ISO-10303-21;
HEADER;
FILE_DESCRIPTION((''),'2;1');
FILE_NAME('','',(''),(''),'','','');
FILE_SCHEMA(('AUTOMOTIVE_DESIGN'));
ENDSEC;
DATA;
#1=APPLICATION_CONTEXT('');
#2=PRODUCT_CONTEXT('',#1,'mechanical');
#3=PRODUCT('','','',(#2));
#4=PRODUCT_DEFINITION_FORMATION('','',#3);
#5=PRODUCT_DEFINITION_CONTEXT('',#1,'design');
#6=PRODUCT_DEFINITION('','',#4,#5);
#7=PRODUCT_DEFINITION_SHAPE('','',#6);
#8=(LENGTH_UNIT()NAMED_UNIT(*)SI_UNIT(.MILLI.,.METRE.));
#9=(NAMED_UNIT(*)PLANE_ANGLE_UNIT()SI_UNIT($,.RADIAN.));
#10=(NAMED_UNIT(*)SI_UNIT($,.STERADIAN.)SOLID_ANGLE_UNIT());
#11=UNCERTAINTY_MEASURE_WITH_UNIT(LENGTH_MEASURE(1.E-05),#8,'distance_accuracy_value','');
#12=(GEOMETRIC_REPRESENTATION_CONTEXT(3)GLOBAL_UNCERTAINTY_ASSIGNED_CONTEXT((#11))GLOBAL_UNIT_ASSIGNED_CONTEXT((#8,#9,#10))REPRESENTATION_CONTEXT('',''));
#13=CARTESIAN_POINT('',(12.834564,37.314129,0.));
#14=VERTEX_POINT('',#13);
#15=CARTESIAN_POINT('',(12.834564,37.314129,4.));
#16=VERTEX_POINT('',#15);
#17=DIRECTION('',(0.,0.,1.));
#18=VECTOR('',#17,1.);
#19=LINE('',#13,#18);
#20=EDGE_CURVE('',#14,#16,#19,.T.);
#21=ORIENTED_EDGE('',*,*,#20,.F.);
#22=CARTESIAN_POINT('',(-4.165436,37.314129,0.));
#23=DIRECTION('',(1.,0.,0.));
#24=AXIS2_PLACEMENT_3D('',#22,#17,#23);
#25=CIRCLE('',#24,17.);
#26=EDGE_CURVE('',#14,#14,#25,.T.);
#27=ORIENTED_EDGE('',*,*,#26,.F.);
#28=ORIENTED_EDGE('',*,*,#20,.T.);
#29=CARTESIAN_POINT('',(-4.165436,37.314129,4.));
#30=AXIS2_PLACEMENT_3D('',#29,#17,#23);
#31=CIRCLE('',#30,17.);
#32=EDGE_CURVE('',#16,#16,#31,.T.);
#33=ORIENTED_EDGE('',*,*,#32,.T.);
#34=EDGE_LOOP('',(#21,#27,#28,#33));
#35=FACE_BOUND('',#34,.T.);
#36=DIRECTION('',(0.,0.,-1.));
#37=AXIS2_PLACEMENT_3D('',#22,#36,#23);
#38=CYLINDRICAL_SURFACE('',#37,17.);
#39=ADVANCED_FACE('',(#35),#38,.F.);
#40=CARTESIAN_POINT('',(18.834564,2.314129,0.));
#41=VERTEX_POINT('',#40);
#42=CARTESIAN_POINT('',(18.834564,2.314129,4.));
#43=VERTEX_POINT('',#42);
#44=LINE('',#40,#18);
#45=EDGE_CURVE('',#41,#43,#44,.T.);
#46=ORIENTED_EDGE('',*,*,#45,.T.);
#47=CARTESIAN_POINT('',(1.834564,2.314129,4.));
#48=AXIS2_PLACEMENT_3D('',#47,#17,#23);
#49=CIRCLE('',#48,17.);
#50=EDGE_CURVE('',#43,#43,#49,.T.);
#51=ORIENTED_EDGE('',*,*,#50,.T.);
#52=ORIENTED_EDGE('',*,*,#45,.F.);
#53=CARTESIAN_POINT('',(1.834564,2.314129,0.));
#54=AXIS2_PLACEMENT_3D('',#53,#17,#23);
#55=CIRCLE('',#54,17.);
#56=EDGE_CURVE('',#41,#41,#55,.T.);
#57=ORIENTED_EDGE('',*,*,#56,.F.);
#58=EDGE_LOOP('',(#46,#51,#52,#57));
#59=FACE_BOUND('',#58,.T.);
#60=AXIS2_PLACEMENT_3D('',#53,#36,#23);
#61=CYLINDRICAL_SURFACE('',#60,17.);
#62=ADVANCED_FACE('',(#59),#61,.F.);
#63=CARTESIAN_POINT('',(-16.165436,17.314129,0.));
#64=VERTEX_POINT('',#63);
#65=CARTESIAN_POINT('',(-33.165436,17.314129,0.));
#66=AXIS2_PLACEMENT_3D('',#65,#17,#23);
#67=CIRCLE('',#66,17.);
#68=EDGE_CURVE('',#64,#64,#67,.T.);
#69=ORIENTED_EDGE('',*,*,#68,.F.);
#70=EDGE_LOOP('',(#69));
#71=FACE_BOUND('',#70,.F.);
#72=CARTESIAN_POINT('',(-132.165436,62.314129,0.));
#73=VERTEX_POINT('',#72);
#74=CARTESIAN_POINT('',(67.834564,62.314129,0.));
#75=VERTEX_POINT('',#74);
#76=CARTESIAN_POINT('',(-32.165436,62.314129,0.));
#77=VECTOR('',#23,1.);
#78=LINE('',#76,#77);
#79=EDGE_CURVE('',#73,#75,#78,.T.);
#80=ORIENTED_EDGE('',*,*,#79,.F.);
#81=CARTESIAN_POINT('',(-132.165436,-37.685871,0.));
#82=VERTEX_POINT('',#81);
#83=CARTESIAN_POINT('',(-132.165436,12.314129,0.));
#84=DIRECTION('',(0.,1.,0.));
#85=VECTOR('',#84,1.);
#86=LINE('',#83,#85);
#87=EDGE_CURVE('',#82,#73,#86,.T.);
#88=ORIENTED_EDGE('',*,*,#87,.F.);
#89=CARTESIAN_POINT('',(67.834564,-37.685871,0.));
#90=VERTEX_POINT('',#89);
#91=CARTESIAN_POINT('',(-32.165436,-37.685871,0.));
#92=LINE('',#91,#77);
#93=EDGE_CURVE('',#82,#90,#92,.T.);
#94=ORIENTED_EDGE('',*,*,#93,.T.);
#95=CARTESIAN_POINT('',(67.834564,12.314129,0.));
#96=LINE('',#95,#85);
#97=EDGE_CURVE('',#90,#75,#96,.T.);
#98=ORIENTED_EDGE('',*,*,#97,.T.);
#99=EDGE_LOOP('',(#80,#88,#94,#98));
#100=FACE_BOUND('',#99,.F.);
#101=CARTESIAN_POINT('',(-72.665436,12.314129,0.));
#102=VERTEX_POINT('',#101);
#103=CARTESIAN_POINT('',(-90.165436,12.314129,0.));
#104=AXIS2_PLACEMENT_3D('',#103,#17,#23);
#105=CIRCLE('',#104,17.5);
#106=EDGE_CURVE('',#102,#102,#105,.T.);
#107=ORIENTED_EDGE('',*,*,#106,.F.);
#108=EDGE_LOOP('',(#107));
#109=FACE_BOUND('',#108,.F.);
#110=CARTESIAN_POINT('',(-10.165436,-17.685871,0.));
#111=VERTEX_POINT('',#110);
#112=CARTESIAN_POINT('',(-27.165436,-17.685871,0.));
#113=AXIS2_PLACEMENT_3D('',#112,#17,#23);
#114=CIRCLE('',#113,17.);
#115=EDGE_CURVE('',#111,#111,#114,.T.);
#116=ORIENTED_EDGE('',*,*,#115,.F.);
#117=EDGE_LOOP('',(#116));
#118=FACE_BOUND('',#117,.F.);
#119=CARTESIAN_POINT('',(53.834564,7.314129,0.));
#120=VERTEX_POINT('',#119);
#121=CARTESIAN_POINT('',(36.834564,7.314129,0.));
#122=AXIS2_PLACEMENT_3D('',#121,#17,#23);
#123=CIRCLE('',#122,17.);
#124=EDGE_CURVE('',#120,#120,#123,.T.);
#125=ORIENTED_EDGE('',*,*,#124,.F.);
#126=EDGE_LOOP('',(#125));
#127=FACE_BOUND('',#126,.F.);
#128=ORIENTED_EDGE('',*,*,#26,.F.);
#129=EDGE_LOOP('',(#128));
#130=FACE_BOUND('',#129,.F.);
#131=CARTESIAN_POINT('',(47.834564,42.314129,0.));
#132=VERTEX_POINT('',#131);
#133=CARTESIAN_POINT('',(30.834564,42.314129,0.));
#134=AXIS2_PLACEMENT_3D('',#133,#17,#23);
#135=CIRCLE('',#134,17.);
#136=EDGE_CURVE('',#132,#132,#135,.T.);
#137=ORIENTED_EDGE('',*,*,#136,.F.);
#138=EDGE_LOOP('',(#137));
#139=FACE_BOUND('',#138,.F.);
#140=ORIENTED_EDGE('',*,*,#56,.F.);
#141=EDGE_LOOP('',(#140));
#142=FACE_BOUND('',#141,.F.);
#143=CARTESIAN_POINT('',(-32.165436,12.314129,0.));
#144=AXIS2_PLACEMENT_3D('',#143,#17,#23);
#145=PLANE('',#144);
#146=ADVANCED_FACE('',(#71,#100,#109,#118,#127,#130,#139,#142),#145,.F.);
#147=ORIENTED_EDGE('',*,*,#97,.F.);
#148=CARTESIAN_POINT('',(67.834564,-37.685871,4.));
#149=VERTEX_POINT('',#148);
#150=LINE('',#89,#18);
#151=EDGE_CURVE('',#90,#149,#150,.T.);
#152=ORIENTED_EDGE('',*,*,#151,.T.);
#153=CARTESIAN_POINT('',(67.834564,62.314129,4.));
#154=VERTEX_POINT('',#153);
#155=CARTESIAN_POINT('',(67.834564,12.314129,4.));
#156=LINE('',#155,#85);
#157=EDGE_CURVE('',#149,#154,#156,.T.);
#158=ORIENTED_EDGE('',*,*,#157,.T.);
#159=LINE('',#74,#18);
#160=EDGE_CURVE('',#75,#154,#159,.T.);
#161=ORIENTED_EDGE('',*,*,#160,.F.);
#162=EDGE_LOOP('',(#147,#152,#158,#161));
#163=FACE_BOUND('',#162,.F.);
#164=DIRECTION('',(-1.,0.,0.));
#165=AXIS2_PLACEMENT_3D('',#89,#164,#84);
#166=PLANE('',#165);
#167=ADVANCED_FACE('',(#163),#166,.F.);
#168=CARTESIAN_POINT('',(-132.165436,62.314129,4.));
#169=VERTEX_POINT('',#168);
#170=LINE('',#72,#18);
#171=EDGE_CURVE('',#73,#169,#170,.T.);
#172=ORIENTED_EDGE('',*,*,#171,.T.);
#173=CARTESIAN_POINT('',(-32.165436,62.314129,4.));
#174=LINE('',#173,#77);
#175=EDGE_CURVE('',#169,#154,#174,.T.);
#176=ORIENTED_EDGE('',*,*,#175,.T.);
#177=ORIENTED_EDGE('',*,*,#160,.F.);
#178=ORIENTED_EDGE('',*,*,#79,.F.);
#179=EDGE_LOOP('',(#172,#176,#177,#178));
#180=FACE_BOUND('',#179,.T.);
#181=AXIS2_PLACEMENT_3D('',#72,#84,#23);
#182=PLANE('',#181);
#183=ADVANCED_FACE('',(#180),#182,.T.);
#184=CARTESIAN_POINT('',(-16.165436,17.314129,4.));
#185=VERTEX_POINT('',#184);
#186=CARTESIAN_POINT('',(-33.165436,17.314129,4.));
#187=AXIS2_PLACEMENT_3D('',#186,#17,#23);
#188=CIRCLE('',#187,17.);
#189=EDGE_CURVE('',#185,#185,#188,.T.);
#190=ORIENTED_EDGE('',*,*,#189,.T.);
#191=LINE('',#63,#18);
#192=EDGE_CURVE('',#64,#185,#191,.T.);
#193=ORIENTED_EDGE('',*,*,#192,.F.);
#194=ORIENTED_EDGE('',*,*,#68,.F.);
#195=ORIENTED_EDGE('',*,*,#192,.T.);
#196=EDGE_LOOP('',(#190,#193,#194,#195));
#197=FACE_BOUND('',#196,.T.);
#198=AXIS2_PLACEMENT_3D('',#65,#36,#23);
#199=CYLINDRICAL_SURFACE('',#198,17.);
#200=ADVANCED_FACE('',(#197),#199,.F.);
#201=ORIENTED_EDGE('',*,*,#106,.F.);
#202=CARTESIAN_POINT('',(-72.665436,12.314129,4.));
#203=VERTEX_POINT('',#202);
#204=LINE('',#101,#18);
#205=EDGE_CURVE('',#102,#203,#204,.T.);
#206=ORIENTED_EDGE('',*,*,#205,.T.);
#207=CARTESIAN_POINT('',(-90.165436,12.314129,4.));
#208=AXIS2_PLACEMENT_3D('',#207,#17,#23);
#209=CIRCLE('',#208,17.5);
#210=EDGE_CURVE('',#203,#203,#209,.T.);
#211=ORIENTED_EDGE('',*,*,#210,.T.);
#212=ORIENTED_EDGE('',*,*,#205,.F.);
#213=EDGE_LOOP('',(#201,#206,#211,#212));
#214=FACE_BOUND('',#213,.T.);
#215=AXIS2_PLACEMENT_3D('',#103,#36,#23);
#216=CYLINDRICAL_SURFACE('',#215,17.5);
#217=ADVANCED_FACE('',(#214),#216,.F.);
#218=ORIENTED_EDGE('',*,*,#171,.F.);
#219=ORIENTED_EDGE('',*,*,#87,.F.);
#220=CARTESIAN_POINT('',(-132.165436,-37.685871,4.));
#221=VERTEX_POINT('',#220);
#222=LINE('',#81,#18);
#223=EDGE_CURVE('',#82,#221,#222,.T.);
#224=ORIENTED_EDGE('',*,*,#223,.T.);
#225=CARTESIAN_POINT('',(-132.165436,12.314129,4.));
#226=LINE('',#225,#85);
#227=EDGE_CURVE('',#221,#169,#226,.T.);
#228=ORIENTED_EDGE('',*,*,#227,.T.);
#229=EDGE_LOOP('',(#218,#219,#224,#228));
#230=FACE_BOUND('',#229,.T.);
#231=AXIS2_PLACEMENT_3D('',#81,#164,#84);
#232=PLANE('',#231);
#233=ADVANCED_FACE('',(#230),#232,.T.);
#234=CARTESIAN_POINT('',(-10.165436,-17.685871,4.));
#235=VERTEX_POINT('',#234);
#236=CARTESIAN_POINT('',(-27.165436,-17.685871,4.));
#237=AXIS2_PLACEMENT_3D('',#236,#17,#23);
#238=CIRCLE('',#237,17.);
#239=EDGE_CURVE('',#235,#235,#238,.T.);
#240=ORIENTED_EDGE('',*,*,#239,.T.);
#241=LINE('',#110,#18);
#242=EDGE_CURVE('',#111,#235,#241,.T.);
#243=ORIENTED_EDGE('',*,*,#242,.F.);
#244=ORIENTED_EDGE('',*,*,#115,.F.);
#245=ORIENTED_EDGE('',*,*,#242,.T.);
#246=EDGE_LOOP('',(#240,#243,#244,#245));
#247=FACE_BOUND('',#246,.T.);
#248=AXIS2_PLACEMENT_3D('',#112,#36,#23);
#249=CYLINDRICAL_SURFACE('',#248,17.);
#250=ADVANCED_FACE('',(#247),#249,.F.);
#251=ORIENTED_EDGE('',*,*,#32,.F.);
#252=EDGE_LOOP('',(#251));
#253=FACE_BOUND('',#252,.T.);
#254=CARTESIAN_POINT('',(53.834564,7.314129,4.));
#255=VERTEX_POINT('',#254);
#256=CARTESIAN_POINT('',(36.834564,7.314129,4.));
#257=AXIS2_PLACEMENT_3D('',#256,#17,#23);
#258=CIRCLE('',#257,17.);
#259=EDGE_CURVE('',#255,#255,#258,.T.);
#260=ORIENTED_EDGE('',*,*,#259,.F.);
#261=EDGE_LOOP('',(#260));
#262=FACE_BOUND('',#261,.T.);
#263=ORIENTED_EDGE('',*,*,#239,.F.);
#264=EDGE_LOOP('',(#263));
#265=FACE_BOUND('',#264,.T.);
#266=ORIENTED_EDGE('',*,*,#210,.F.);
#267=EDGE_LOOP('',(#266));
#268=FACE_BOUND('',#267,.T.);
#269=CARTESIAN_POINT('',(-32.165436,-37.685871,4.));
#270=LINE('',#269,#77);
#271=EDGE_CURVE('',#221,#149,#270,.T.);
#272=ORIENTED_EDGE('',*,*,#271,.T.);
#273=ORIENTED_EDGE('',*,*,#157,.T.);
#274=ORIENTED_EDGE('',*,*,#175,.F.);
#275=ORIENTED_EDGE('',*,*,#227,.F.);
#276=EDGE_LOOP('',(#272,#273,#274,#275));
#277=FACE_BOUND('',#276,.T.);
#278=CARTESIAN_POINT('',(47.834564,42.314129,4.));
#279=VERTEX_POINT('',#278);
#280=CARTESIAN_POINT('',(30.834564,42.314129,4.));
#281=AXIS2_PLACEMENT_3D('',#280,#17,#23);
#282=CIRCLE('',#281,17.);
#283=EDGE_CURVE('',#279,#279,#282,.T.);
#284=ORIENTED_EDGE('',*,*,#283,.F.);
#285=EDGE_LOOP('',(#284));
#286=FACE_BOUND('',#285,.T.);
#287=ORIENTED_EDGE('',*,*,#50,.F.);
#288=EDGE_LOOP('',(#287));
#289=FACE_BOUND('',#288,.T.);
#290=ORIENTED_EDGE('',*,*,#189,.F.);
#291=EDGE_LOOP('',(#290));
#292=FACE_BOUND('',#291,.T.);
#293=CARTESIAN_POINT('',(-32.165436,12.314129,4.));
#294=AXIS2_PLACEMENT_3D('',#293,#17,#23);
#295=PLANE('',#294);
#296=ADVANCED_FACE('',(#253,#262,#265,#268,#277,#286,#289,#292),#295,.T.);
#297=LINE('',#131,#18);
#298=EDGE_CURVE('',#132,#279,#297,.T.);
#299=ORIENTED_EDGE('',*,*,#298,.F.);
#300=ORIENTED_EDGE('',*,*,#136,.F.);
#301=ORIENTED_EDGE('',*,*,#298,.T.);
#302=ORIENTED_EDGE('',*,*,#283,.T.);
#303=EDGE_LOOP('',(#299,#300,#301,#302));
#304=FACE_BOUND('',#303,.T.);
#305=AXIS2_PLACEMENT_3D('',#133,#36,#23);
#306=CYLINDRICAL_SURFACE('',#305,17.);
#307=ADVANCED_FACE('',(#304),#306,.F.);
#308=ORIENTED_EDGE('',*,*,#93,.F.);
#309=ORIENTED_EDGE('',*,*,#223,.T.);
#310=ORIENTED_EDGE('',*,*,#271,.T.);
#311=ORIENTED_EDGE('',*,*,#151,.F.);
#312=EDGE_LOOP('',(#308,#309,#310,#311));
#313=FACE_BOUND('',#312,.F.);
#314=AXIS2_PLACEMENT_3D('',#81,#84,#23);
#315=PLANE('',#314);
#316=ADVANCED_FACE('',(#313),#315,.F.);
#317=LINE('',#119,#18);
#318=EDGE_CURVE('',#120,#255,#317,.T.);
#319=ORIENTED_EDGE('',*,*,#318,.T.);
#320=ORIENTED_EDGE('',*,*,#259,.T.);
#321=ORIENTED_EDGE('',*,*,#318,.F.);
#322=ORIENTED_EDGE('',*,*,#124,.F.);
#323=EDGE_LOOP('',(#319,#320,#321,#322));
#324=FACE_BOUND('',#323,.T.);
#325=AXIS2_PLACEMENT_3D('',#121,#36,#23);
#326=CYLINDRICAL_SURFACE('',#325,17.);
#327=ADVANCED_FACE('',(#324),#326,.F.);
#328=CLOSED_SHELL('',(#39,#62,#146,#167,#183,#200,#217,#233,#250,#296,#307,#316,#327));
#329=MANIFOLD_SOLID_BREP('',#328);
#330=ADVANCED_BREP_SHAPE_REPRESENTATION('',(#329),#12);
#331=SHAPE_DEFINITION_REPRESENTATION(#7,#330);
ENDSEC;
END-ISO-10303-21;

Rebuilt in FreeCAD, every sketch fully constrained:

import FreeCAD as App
import Part
import Sketcher
from FreeCAD import Vector

doc = App.newDocument("Part")
body = doc.addObject("PartDesign::Body", "Body")

# Sketch on XY plane
sketch1 = body.newObject("Sketcher::SketchObject", "Sketch")
sketch1.AttachmentSupport = (doc.getObject("XY_Plane"), [""])
sketch1.MapMode = "FlatFace"
sketch1.addGeometry([
    Part.LineSegment(Vector(-132, 62, 0), Vector(-132, -38, 0)),
    Part.LineSegment(Vector(-132, -38, 0), Vector(68, -38, 0)),
    Part.LineSegment(Vector(68, -38, 0), Vector(68, 62, 0)),
    Part.LineSegment(Vector(68, 62, 0), Vector(-132, 62, 0)),
], False)
sketch1.addConstraint([
    Sketcher.Constraint("Coincident", 0, 2, 1, 1),
    Sketcher.Constraint("Coincident", 1, 2, 2, 1),
    Sketcher.Constraint("Coincident", 2, 2, 3, 1),
    Sketcher.Constraint("Coincident", 3, 2, 0, 1),
    Sketcher.Constraint("Vertical", 0),
    Sketcher.Constraint("Horizontal", 1),
    Sketcher.Constraint("Vertical", 2),
    Sketcher.Constraint("Horizontal", 3),
    Sketcher.Constraint("DistanceX", 1, 1, 1, 2, 200.0),
    Sketcher.Constraint("DistanceY", 0, 2, 0, 1, 100.0),
    Sketcher.Constraint("DistanceY", 0, 2, -1, 1, 37.685871),
    Sketcher.Constraint("DistanceX", 0, 2, -1, 1, 132.165436),
])
pad1 = body.newObject("PartDesign::Pad", "Pad")
pad1.Profile = sketch1
pad1.Length = 4

# Sketch on XY plane
sketch2 = body.newObject("Sketcher::SketchObject", "Sketch001")
sketch2.AttachmentSupport = (doc.getObject("XY_Plane"), [""])
sketch2.MapMode = "FlatFace"
sketch2.addGeometry([
    Part.Circle(Vector(-90, 12, 0), Vector(0, 0, 1), 18),  # 0
    Part.Circle(Vector(-27, -18, 0), Vector(0, 0, 1), 17),  # 1
    Part.Circle(Vector(-33, 17, 0), Vector(0, 0, 1), 17),  # 2
    Part.Circle(Vector(2, 2, 0), Vector(0, 0, 1), 17),  # 3
    Part.Circle(Vector(-4, 37, 0), Vector(0, 0, 1), 17),  # 4
    Part.Circle(Vector(37, 7, 0), Vector(0, 0, 1), 17),  # 5
    Part.Circle(Vector(31, 42, 0), Vector(0, 0, 1), 17),  # 6
], False)
sketch2.addConstraint([
    Sketcher.Constraint("Equal", 1, 2),
    Sketcher.Constraint("Equal", 2, 3),
    Sketcher.Constraint("Equal", 3, 4),
    Sketcher.Constraint("Equal", 4, 5),
    Sketcher.Constraint("Equal", 5, 6),
    Sketcher.Constraint("Diameter", 0, 35.0),
    Sketcher.Constraint("Diameter", 1, 34.0),
    Sketcher.Constraint("DistanceX", 0, 3, 1, 3, 63.0),
    Sketcher.Constraint("DistanceY", 1, 3, 0, 3, 30.0),
    Sketcher.Constraint("DistanceX", 2, 3, 1, 3, 6.0),
    Sketcher.Constraint("DistanceY", 1, 3, 2, 3, 35.0),
    Sketcher.Constraint("DistanceX", 1, 3, 3, 3, 29.0),
    Sketcher.Constraint("DistanceY", 1, 3, 3, 3, 20.0),
    Sketcher.Constraint("DistanceX", 2, 3, 4, 3, 29.0),
    Sketcher.Constraint("DistanceY", 2, 3, 4, 3, 20.0),
    Sketcher.Constraint("DistanceX", 3, 3, 5, 3, 35.0),
    Sketcher.Constraint("DistanceY", 3, 3, 5, 3, 5.0),
    Sketcher.Constraint("DistanceX", 4, 3, 6, 3, 35.0),
    Sketcher.Constraint("DistanceY", 4, 3, 6, 3, 5.0),
    Sketcher.Constraint("DistanceY", -1, 1, 0, 3, 12.314129),
    Sketcher.Constraint("DistanceX", 0, 3, -1, 1, 90.165436),
])
pocket1 = body.newObject("PartDesign::Pocket", "Pocket")
pocket1.Profile = sketch2
pocket1.Length = 4
pocket1.Reversed = True

doc.recompute()
